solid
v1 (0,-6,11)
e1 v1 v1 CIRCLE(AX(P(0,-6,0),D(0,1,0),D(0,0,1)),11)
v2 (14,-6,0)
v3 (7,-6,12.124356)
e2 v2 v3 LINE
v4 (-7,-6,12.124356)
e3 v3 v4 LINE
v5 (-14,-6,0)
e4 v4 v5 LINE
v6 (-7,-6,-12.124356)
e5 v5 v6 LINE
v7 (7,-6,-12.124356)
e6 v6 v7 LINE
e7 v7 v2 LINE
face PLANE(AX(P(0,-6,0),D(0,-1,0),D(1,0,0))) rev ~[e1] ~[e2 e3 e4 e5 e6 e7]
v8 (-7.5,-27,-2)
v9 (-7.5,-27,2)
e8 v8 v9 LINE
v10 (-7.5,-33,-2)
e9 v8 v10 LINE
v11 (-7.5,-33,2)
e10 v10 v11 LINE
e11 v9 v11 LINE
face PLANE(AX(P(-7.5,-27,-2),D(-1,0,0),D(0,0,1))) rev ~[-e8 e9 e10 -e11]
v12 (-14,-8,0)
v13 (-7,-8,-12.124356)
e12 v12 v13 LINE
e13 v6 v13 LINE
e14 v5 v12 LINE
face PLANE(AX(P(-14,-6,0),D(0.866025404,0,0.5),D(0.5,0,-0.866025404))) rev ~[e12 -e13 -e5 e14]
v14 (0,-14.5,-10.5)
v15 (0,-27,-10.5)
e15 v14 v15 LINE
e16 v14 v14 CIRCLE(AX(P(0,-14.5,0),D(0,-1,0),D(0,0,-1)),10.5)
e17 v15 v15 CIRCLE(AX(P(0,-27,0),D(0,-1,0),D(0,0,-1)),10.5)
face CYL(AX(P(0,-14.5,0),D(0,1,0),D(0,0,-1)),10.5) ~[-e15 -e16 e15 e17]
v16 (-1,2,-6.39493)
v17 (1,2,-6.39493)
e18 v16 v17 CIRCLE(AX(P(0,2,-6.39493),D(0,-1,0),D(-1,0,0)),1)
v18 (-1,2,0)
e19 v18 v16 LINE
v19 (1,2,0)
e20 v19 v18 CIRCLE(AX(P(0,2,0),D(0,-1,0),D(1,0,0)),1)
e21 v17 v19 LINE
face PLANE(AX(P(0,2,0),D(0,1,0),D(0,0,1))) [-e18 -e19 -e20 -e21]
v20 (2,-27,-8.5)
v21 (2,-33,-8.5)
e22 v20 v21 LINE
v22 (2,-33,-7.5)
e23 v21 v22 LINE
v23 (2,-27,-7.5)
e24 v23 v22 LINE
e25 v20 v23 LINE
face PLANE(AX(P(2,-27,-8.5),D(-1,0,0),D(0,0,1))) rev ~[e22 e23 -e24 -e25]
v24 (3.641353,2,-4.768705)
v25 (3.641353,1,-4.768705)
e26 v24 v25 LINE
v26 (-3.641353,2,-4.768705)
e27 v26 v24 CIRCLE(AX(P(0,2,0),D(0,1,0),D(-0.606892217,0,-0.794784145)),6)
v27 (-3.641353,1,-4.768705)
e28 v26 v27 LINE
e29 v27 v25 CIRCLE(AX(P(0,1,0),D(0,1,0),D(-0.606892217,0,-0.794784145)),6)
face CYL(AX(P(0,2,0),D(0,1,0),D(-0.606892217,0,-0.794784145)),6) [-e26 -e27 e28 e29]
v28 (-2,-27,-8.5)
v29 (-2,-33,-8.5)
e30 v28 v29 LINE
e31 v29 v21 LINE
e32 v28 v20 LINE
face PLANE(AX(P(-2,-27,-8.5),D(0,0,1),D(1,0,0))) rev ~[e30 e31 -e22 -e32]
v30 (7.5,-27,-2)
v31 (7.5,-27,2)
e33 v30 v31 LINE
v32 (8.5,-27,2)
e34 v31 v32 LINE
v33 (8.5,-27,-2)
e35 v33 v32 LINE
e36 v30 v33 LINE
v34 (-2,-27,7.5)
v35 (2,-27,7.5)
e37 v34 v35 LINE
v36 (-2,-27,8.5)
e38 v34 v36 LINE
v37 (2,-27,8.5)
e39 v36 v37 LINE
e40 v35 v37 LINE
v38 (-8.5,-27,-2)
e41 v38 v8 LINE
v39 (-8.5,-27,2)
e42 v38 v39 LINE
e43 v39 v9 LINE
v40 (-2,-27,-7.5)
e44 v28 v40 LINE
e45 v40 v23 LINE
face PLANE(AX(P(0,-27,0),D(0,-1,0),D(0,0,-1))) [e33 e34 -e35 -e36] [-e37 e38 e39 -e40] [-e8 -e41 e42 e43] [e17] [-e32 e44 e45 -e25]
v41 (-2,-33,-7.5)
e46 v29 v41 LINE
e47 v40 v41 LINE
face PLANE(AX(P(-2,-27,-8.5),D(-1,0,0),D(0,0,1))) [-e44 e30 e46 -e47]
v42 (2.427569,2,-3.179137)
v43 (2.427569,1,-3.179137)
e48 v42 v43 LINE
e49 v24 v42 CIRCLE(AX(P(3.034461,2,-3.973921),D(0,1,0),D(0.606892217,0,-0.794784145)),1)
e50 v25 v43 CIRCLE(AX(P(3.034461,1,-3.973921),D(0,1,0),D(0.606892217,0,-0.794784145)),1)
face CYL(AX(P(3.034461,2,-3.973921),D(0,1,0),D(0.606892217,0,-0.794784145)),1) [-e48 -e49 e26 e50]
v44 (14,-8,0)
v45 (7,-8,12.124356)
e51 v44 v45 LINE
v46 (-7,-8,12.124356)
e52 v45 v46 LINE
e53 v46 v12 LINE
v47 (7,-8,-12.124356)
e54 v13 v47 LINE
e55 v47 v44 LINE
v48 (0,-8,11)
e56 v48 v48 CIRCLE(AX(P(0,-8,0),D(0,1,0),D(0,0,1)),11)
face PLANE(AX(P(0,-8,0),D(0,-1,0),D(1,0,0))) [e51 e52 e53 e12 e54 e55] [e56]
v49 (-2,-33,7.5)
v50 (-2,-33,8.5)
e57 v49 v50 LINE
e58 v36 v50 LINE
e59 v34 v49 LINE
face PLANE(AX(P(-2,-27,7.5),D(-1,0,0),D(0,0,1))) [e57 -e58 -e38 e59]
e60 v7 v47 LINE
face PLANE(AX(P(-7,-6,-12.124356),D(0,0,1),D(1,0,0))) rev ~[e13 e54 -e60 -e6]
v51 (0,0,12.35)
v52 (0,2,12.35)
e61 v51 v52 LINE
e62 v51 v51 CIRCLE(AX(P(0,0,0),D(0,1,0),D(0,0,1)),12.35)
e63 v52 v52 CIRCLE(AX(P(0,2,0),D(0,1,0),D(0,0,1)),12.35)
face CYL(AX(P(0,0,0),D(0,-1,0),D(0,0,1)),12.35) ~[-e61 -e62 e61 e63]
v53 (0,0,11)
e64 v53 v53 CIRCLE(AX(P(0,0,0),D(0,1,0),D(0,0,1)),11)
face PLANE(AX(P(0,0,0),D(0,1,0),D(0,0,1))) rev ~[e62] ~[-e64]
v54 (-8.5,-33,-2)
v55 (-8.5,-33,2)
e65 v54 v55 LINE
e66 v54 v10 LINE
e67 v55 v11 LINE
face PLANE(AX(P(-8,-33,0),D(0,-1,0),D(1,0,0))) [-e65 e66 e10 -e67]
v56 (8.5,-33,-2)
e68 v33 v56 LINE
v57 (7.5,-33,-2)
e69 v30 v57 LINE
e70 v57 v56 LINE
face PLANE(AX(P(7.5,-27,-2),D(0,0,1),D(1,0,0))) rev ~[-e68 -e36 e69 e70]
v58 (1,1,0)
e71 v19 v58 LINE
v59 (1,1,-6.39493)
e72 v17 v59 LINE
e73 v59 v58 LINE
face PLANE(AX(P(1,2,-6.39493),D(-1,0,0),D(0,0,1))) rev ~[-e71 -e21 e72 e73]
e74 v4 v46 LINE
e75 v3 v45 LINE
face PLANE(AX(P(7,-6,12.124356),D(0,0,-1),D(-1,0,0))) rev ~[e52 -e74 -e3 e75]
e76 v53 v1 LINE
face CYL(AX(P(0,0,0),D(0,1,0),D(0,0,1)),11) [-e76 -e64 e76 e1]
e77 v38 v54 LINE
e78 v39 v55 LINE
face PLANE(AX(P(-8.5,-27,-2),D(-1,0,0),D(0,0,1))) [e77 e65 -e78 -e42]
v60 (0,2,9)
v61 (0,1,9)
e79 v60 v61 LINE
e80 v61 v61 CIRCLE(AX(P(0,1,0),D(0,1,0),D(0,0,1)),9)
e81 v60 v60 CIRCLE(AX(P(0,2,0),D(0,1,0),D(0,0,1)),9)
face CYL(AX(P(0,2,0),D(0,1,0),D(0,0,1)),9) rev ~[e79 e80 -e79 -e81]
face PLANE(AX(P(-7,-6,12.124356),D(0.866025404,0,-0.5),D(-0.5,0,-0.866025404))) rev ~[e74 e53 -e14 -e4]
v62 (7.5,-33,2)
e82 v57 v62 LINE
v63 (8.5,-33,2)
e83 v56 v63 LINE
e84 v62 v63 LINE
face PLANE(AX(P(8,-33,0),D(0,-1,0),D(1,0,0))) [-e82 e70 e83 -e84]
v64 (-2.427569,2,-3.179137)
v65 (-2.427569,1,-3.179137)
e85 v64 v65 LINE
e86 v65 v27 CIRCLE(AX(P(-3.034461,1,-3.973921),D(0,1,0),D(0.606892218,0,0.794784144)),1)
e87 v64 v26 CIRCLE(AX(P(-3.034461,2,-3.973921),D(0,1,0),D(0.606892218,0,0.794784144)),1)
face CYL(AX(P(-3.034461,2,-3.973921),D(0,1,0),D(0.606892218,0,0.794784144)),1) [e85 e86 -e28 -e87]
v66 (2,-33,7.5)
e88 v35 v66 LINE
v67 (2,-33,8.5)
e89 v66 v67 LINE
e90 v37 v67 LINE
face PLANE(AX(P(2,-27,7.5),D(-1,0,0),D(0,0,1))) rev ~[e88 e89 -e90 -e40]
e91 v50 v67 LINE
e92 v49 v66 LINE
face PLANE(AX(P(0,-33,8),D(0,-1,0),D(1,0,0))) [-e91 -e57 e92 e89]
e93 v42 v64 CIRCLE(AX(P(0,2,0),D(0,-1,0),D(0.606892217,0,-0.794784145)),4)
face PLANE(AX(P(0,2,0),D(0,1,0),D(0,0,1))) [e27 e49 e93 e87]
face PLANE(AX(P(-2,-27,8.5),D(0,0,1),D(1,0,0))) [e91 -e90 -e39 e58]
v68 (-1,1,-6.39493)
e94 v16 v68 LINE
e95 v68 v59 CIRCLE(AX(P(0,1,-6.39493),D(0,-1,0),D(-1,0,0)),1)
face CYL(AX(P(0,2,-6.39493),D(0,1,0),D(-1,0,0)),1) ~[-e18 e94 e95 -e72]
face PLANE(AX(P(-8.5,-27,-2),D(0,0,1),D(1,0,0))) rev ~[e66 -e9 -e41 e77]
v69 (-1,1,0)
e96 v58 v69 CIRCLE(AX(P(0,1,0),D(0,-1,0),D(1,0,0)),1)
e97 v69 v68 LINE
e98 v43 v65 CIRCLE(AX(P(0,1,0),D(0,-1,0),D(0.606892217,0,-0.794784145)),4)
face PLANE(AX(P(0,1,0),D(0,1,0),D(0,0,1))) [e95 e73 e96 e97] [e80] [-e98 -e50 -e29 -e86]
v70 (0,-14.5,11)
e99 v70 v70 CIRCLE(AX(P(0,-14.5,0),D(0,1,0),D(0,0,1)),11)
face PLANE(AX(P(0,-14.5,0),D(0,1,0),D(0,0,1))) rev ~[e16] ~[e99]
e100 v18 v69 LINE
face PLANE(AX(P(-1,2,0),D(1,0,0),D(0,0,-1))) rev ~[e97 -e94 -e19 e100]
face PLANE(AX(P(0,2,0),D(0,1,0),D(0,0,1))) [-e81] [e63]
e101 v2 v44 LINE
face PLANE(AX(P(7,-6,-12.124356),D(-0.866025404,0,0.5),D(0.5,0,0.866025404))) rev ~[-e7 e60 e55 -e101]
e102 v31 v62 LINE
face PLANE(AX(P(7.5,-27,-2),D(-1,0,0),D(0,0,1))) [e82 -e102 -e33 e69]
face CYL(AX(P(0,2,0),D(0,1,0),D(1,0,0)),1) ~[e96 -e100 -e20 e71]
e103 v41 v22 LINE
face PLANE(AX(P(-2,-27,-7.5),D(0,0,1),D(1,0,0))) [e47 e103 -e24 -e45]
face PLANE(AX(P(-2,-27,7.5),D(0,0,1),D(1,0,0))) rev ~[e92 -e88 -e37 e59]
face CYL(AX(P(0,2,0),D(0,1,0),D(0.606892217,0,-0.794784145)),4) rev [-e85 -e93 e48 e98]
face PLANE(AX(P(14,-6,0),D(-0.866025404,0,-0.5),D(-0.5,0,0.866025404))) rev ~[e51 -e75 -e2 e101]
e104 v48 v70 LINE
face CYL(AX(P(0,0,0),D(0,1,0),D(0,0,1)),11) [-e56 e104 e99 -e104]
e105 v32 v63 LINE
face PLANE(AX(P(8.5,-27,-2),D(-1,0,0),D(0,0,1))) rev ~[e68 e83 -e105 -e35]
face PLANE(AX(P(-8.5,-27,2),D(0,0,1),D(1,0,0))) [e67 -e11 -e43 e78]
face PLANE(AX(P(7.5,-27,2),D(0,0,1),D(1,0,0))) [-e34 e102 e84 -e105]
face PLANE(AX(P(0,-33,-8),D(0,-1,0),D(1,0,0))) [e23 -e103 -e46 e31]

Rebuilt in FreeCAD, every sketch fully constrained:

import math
import FreeCAD as App
import Part
import Sketcher
from FreeCAD import Vector
Q = App.Units.Quantity


def add_polygon(sketch, points):
    """Adds a closed chain of lines whose ends are joined by coincident constraints."""
    first, n = sketch.GeometryCount, len(points)
    for a, b in zip(points, points[1:] + points[:1]):
        sketch.addGeometry(Part.LineSegment(App.Vector(*a, 0), App.Vector(*b, 0)), False)
    for i in range(n):
        sketch.addConstraint(Sketcher.Constraint("Coincident", first + i, 2, first + (i + 1) % n, 1))

doc = App.newDocument("Part")
body = doc.addObject("PartDesign::Body", "Body")

# Sketch on XZ plane
sketch1 = body.newObject("Sketcher::SketchObject", "Sketch")
sketch1.AttachmentSupport = (doc.getObject("XZ_Plane"), [""])
sketch1.MapMode = "FlatFace"
sketch1.addGeometry(Part.Circle(Vector(0, 0, 0), Vector(0, 0, 1), 11), False)
sketch1.addConstraint([
    Sketcher.Constraint("Coincident", 0, 3, -1, 1),
    Sketcher.Constraint("Diameter", 0, Q("22 mm")),
])
pad1 = body.newObject("PartDesign::Pad", "Pad")
pad1.Profile = sketch1
pad1.Length = 14.5

# Sketch on XZ plane
sketch2 = body.newObject("Sketcher::SketchObject", "Sketch001")
sketch2.AttachmentSupport = (doc.getObject("XZ_Plane"), [""])
sketch2.MapMode = "FlatFace"
sketch2.addGeometry(Part.Circle(Vector(0, 0, 0), Vector(0, 0, 1), 12), False)
sketch2.addConstraint([
    Sketcher.Constraint("Coincident", 0, 3, -1, 1),
    Sketcher.Constraint("Diameter", 0, Q("24.7 mm")),
])
pad2 = body.newObject("PartDesign::Pad", "Pad001")
pad2.Profile = sketch2
pad2.Length = 2
pad2.Reversed = True

# Sketch on XZ plane
sketch3 = body.newObject("Sketcher::SketchObject", "Sketch002")
sketch3.AttachmentSupport = (doc.getObject("XZ_Plane"), [""])
sketch3.MapMode = "FlatFace"
sketch3.AttachmentOffset = App.Placement(Vector(0, 0, -2), App.Rotation())
sketch3.addGeometry([
    Part.Circle(Vector(0, 0, 0), Vector(0, 0, 1), 9),  # 0
    Part.ArcOfCircle(Part.Circle(Vector(0, 0, 0), Vector(0, 0, 1), 1), math.radians(0), math.radians(180)),  # 1
    Part.LineSegment(Vector(-1, 0, 0), Vector(-1, -6.4, 0)),  # 2
    Part.ArcOfCircle(Part.Circle(Vector(0, -6.4, 0), Vector(0, 0, 1), 1), math.radians(180), math.radians(360)),  # 3
    Part.LineSegment(Vector(1, -6.4, 0), Vector(1, 0, 0)),  # 4
    Part.ArcOfCircle(Part.Circle(Vector(0, 0, 0), Vector(0, 0, 1), 6), math.radians(-53), math.radians(233)),  # 5
    Part.ArcOfCircle(Part.Circle(Vector(-3, -4, 0), Vector(0, 0, 1), 1), math.radians(-127), math.radians(53)),  # 6
    Part.ArcOfCircle(Part.Circle(Vector(0, 0, 0), Vector(0, 0, 1), 4), math.radians(-53), math.radians(233)),  # 7
    Part.ArcOfCircle(Part.Circle(Vector(3, -4, 0), Vector(0, 0, 1), 1), math.radians(127), math.radians(307)),  # 8
], False)
sketch3.addConstraint([
    Sketcher.Constraint("Tangent", 1, 2, 2, 1),
    Sketcher.Constraint("Tangent", 2, 2, 3, 1),
    Sketcher.Constraint("Tangent", 3, 2, 4, 1),
    Sketcher.Constraint("Tangent", 4, 2, 1, 1),
    Sketcher.Constraint("Tangent", 5, 2, 6, 1),
    Sketcher.Constraint("Tangent", 6, 2, 7, 2),
    Sketcher.Constraint("Tangent", 7, 1, 8, 1),
    Sketcher.Constraint("Tangent", 8, 2, 5, 1),
    Sketcher.Constraint("Vertical", 2),
    Sketcher.Constraint("Vertical", 4),
    Sketcher.Constraint("Coincident", 0, 3, -1, 1),
    Sketcher.Constraint("Coincident", 1, 3, -1, 1),
    Sketcher.Constraint("Coincident", 5, 3, -1, 1),
    Sketcher.Constraint("Coincident", 7, 3, -1, 1),
    Sketcher.Constraint("Equal", 3, 6),
    Sketcher.Constraint("Horizontal", 6, 3, 8, 3),
    Sketcher.Constraint("Diameter", 0, Q("18 mm")),
    Sketcher.Constraint("Radius", 1, Q("1 mm")),
    Sketcher.Constraint("Radius", 5, Q("6 mm")),
    Sketcher.Constraint("DistanceY", 2, 2, 2, 1, Q("6.39493 mm")),
    Sketcher.Constraint("DistanceX", 6, 3, -1, 1, Q("3.034461 mm")),
])
pocket1 = body.newObject("PartDesign::Pocket", "Pocket")
pocket1.Profile = sketch3
pocket1.Length = 1
pocket1.Reversed = True

# Sketch on XZ plane
sketch4 = body.newObject("Sketcher::SketchObject", "Sketch003")
sketch4.AttachmentSupport = (doc.getObject("XZ_Plane"), [""])
sketch4.MapMode = "FlatFace"
sketch4.AttachmentOffset = App.Placement(Vector(0, 0, 14.5), App.Rotation())
sketch4.addGeometry(Part.Circle(Vector(0, 0, 0), Vector(0, 0, 1), 10), False)
sketch4.addConstraint([
    Sketcher.Constraint("Coincident", 0, 3, -1, 1),
    Sketcher.Constraint("Diameter", 0, Q("21 mm")),
])
pad3 = body.newObject("PartDesign::Pad", "Pad002")
pad3.Profile = sketch4
pad3.Length = 12.5

# Sketch on XZ plane
sketch5 = body.newObject("Sketcher::SketchObject", "Sketch004")
sketch5.AttachmentSupport = (doc.getObject("XZ_Plane"), [""])
sketch5.MapMode = "FlatFace"
sketch5.AttachmentOffset = App.Placement(Vector(0, 0, 27), App.Rotation())
add_polygon(sketch5, [(-8.5, 2), (-8.5, -2), (-7.5, -2), (-7.5, 2)])  # lines 0-3
add_polygon(sketch5, [(-2, 8.5), (-2, 7.5), (2, 7.5), (2, 8.5)])  # lines 4-7
add_polygon(sketch5, [(-2, -7.5), (-2, -8.5), (2, -8.5), (2, -7.5)])  # lines 8-11
add_polygon(sketch5, [(7.5, 2), (7.5, -2), (8.5, -2), (8.5, 2)])  # lines 12-15
sketch5.addConstraint([
    Sketcher.Constraint("Vertical", 0),
    Sketcher.Constraint("Horizontal", 1),
    Sketcher.Constraint("Vertical", 2),
    Sketcher.Constraint("Horizontal", 3),
    Sketcher.Constraint("Vertical", 4),
    Sketcher.Constraint("Horizontal", 5),
    Sketcher.Constraint("Vertical", 6),
    Sketcher.Constraint("Horizontal", 7),
    Sketcher.Constraint("Vertical", 8),
    Sketcher.Constraint("Horizontal", 9),
    Sketcher.Constraint("Vertical", 10),
    Sketcher.Constraint("Horizontal", 11),
    Sketcher.Constraint("Vertical", 12),
    Sketcher.Constraint("Horizontal", 13),
    Sketcher.Constraint("Vertical", 14),
    Sketcher.Constraint("Horizontal", 15),
    Sketcher.Constraint("Symmetric", 6, 2, 8, 2, -1, 1),
    Sketcher.Constraint("Symmetric", 4, 2, 10, 2, -1, 1),
    Sketcher.Constraint("Symmetric", 2, 2, 12, 2, -1, 1),
    Sketcher.Constraint("Symmetric", 0, 2, 14, 2, -1, 1),
    Sketcher.Constraint("Horizontal", 1, 2, 12, 2),
    Sketcher.Constraint("Vertical", 7, 2, 8, 2),
    Sketcher.Constraint("Equal", 11, 0),
    Sketcher.Constraint("Equal", 15, 4),
    Sketcher.Constraint("DistanceX", 1, 1, 1, 2, Q("1 mm")),
    Sketcher.Constraint("DistanceX", 5, 1, 5, 2, Q("4 mm")),
    Sketcher.Constraint("DistanceY", 8, 2, 4, 2, Q("16 mm")),
    Sketcher.Constraint("DistanceX", 0, 2, -1, 1, Q("8.5 mm")),
])
pad4 = body.newObject("PartDesign::Pad", "Pad003")
pad4.Profile = sketch5
pad4.Length = 6

# Sketch on XZ plane
sketch6 = body.newObject("Sketcher::SketchObject", "Sketch005")
sketch6.AttachmentSupport = (doc.getObject("XZ_Plane"), [""])
sketch6.MapMode = "FlatFace"
sketch6.AttachmentOffset = App.Placement(Vector(0, 0, 6), App.Rotation())
add_polygon(sketch6, [(14, 0), (7, 12), (-7, 12), (-14, 0), (-7, -12), (7, -12)])  # lines 0-5
sketch6.addConstraint([
    Sketcher.Constraint("Horizontal", 1),
    Sketcher.Constraint("Horizontal", 4),
    Sketcher.Constraint("Symmetric", 0, 2, 3, 2, -1, 1),
    Sketcher.Constraint("Symmetric", 2, 2, 5, 2, -1, 1),
    Sketcher.Constraint("PointOnObject", 2, 2, -1),
    Sketcher.Constraint("Parallel", 2, 5),
    Sketcher.Constraint("Vertical", 1, 2, 3, 2),
    Sketcher.Constraint("DistanceX", 1, 2, 1, 1, Q("14 mm")),
    Sketcher.Constraint("Angle", 0, Q("120 deg")),
    Sketcher.Constraint("Distance", 0, Q("14 mm")),
])
pad5 = body.newObject("PartDesign::Pad", "Pad004")
pad5.Profile = sketch6
pad5.Length = 2

doc.recompute()
